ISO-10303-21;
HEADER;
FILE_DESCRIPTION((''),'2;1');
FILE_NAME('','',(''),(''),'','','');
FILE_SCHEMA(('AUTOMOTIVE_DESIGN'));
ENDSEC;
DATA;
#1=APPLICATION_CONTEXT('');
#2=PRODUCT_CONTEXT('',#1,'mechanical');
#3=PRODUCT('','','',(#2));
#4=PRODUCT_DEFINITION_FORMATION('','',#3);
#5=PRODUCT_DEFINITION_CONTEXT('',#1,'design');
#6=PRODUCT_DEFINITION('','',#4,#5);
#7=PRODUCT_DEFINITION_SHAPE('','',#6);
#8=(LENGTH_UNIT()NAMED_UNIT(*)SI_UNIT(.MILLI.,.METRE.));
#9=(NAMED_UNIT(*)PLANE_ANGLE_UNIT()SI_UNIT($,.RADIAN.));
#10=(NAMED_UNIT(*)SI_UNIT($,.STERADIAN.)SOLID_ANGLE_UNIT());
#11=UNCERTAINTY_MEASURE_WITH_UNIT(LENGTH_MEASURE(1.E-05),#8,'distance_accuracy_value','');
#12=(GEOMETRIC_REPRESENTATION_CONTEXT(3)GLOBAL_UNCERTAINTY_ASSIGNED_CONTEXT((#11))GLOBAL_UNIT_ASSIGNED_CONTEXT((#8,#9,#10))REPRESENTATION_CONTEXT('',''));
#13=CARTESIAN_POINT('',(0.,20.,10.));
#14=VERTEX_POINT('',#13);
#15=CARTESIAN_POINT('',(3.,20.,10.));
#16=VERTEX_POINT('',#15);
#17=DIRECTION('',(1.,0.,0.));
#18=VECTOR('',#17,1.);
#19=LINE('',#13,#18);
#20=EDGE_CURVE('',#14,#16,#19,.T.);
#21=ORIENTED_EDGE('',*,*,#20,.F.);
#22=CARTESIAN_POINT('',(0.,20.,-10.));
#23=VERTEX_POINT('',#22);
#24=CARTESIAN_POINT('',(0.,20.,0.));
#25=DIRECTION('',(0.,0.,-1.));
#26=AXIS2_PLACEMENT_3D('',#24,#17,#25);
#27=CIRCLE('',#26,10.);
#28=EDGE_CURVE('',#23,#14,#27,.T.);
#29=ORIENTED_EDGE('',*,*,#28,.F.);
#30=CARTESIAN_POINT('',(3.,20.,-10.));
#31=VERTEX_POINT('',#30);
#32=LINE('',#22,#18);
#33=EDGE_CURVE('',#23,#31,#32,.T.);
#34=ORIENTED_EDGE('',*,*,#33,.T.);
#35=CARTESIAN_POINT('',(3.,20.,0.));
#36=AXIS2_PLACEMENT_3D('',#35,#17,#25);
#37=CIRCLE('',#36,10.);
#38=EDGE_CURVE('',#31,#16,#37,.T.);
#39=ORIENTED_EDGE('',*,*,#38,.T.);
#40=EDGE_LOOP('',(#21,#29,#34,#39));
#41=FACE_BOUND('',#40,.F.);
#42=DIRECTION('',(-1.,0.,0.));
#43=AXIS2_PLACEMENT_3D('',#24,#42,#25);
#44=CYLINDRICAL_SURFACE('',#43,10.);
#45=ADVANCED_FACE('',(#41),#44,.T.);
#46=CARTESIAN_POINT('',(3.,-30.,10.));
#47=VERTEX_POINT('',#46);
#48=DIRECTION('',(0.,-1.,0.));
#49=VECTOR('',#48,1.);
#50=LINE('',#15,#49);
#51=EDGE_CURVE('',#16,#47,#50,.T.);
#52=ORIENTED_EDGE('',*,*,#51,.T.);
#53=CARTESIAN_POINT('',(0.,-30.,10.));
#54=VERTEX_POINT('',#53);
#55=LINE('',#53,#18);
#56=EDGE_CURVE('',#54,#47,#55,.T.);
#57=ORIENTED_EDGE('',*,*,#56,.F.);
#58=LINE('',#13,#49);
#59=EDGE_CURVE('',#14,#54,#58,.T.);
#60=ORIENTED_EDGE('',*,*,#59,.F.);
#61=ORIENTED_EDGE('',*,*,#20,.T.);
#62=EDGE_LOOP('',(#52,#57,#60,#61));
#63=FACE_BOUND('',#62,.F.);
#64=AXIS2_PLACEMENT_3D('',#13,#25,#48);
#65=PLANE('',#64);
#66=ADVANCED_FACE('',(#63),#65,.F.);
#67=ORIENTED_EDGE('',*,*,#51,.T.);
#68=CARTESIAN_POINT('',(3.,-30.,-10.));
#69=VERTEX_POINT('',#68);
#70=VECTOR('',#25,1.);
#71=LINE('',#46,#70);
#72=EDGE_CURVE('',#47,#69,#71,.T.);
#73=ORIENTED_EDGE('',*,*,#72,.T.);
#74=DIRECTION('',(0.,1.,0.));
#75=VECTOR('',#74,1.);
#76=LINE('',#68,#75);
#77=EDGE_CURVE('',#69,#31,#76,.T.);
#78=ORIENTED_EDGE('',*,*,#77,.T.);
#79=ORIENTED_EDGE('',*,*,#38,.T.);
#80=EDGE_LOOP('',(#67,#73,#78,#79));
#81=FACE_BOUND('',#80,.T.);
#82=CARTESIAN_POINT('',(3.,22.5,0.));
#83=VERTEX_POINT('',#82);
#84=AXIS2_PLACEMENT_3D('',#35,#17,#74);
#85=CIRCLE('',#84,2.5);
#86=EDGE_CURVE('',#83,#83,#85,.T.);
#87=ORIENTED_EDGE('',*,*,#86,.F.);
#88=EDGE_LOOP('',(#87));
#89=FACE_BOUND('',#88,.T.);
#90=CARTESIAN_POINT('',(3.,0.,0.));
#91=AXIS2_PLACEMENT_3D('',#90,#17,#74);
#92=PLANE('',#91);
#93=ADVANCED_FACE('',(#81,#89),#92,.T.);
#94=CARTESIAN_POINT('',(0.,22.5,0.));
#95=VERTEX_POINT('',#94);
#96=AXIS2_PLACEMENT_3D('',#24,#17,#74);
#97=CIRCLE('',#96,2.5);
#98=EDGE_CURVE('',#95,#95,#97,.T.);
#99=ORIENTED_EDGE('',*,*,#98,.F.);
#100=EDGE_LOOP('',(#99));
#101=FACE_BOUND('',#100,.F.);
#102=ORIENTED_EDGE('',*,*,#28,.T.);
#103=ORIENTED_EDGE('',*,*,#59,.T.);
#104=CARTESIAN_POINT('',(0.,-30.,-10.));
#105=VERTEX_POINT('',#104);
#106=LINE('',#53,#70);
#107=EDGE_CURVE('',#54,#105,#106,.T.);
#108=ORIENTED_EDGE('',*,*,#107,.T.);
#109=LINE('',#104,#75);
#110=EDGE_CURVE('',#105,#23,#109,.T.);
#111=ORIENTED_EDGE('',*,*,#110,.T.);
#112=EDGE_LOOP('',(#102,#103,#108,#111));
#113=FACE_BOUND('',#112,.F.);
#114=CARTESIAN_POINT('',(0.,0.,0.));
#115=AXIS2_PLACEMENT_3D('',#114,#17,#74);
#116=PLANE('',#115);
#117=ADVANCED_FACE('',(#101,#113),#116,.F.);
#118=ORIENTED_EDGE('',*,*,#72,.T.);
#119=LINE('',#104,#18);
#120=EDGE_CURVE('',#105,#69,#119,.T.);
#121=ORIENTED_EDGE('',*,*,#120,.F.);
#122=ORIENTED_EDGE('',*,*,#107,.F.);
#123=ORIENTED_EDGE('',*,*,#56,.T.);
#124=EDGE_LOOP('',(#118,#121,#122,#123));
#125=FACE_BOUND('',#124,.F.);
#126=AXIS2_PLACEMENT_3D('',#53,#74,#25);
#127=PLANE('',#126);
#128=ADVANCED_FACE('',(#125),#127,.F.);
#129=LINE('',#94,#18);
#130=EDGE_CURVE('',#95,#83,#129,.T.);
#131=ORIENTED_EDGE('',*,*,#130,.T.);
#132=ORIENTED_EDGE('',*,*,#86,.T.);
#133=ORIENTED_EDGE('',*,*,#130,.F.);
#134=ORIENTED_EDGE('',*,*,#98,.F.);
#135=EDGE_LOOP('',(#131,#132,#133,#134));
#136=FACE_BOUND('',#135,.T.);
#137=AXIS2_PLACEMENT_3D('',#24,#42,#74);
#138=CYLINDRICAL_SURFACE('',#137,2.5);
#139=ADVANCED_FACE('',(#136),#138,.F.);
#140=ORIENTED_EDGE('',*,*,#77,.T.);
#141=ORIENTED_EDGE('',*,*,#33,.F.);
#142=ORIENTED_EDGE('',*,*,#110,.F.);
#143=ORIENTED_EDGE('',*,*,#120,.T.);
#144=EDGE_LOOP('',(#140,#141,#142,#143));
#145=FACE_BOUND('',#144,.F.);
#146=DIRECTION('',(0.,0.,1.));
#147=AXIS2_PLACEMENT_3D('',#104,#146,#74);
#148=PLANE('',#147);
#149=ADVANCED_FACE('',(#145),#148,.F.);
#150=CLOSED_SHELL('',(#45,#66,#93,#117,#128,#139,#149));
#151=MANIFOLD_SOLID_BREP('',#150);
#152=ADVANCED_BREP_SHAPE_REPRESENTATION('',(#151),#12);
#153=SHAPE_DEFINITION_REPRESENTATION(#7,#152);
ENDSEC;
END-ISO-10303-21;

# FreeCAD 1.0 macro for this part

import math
import FreeCAD as App
import Part
import Sketcher

V = App.Vector

doc = App.newDocument("Part")
params = doc.addObject("Spreadsheet::Sheet", "Params")
for row, (alias, value) in enumerate([
    ("sketch1_diameter", "5 mm"),
    ("sketch1_radius", "10 mm"),
    ("sketch1_width", "50 mm"),
    ("pad1_length", "3 mm"),
], start=1):
    params.set(f"A{row}", alias)
    params.set(f"B{row}", "=" + value)
    params.setAlias(f"B{row}", alias)

body = doc.addObject("PartDesign::Body", "Body")

# Sketch on YZ plane
sketch1 = body.newObject("Sketcher::SketchObject", "Sketch")
sketch1.AttachmentSupport = (doc.getObject("YZ_Plane"), [""])
sketch1.MapMode = "FlatFace"
sketch1.addGeometry([
    Part.ArcOfCircle(Part.Circle(V(20, 0, 0), V(0, 0, 1), 10), math.radians(-90), math.radians(90)),  # 0
    Part.LineSegment(V(20, 10, 0), V(-30, 10, 0)),  # 1
    Part.LineSegment(V(-30, 10, 0), V(-30, -10, 0)),  # 2
    Part.LineSegment(V(-30, -10, 0), V(20, -10, 0)),  # 3
    Part.Circle(V(20, 0, 0), V(0, 0, 1), 2.5),  # 4
], False)
sketch1.addConstraint([
    Sketcher.Constraint("Tangent", 0, 2, 1, 1),
    Sketcher.Constraint("Coincident", 1, 2, 2, 1),
    Sketcher.Constraint("Coincident", 2, 2, 3, 1),
    Sketcher.Constraint("Tangent", 3, 2, 0, 1),
    Sketcher.Constraint("Horizontal", 1),
    Sketcher.Constraint("Vertical", 2),
    Sketcher.Constraint("Horizontal", 3),
    Sketcher.Constraint("Coincident", 4, 3, 0, 3),
    Sketcher.Constraint("PointOnObject", 0, 3, -1),
    Sketcher.Constraint("Diameter", 4, 5.0),
    Sketcher.Constraint("Radius", 0, 10.0),
    Sketcher.Constraint("DistanceX", 1, 2, 1, 1, 50.0),
    Sketcher.Constraint("DistanceX", -1, 1, 0, 3, 20.0),
])
sketch1.setExpression("Constraints[9]", "Params.sketch1_diameter")
sketch1.setExpression("Constraints[10]", "Params.sketch1_radius")
sketch1.setExpression("Constraints[11]", "Params.sketch1_width")
pad1 = body.newObject("PartDesign::Pad", "Pad")
pad1.Profile = sketch1
pad1.setExpression("Length", "Params.pad1_length")

doc.recompute()
